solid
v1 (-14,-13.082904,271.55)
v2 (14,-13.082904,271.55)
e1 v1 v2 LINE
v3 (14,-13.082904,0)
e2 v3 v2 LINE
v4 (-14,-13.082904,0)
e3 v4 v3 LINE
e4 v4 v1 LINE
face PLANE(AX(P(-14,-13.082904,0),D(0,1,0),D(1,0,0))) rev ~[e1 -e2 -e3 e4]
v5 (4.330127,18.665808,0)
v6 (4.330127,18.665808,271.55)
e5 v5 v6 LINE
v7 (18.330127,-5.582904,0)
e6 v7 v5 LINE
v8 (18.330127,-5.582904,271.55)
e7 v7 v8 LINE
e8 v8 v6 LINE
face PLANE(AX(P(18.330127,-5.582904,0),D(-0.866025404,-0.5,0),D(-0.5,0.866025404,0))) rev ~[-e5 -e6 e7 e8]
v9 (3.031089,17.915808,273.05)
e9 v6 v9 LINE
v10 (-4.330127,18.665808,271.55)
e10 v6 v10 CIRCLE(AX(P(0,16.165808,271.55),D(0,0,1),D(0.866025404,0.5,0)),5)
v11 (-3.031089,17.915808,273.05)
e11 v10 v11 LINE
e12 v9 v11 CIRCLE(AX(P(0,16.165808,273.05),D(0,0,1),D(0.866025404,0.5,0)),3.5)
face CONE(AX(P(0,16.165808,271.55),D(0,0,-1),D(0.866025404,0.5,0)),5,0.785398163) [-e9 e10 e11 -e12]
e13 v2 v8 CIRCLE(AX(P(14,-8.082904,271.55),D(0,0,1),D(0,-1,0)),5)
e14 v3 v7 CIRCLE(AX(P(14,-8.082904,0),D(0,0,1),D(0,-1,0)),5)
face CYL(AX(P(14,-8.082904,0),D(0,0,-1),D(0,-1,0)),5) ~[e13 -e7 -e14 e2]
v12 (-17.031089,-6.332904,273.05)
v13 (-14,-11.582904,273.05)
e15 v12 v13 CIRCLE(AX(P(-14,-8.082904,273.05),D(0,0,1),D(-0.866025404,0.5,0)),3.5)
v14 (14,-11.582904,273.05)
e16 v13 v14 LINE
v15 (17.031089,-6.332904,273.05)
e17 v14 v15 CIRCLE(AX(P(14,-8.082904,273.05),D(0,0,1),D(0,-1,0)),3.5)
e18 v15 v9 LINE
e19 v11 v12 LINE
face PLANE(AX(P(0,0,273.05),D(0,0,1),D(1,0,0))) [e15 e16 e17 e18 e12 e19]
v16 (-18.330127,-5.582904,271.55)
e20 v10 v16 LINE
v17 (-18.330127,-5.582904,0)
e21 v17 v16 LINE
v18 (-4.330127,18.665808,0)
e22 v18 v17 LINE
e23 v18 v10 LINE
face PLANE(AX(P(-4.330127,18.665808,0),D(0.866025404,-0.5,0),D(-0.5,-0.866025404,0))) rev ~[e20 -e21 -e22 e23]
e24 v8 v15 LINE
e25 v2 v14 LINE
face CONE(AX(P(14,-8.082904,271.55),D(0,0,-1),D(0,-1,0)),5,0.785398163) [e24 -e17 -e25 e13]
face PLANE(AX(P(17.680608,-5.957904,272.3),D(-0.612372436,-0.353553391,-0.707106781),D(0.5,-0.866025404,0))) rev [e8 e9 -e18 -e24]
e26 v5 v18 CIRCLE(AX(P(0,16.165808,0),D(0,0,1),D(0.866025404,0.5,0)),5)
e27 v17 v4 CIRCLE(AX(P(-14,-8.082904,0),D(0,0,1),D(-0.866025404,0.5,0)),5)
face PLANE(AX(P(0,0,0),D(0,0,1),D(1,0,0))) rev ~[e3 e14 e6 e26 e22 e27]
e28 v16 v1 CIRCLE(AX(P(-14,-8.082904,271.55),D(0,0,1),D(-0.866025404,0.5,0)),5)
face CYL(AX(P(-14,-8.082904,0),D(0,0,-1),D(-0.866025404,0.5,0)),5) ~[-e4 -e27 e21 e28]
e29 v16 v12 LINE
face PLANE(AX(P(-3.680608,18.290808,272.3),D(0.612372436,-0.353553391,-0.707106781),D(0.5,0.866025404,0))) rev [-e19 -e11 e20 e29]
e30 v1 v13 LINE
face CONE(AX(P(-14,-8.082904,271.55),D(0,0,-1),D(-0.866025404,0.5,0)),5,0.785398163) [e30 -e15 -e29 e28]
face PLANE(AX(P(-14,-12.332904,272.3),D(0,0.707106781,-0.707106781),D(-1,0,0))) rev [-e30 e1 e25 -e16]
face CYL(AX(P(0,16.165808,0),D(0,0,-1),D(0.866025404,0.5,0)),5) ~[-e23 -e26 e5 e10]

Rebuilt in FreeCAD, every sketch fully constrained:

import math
import FreeCAD as App
import Part
import Sketcher
Q = App.Units.Quantity


def edges_at(feature, points):
    """Names of the edges that pass closest to the given points."""
    edges = feature.Shape.Edges
    near = lambda p: min(range(len(edges)), key=lambda i: edges[i].distToShape(Part.Vertex(*p))[0])
    return sorted({f"Edge{near(p) + 1}" for p in points})

doc = App.newDocument("Part")
body = doc.addObject("PartDesign::Body", "Body")

sketch1 = body.newObject("Sketcher::SketchObject", "Sketch")
sketch1.AttachmentSupport = (doc.getObject("XY_Plane"), [""])
sketch1.MapMode = "FlatFace"
sketch1.addGeometry(Part.LineSegment(App.Vector(18.330127, -5.582904, 0), App.Vector(4.330127, 18.665808, 0)), False)
sketch1.addGeometry(Part.ArcOfCircle(Part.Circle(App.Vector(0, 16.165808, 0), App.Vector(0, 0, 1), 5), math.radians(30), math.radians(150)), False)
sketch1.addGeometry(Part.LineSegment(App.Vector(-4.330127, 18.665808, 0), App.Vector(-18.330127, -5.582904, 0)), False)
sketch1.addGeometry(Part.ArcOfCircle(Part.Circle(App.Vector(-14, -8.082904, 0), App.Vector(0, 0, 1), 5), math.radians(150), math.radians(270)), False)
sketch1.addGeometry(Part.LineSegment(App.Vector(-14, -13.082904, 0), App.Vector(14, -13.082904, 0)), False)
sketch1.addGeometry(Part.ArcOfCircle(Part.Circle(App.Vector(14, -8.082904, 0), App.Vector(0, 0, 1), 5), math.radians(-90), math.radians(30)), False)
sketch1.addConstraint(Sketcher.Constraint("Tangent", 0, 2, 1, 1))
sketch1.addConstraint(Sketcher.Constraint("Tangent", 1, 2, 2, 1))
sketch1.addConstraint(Sketcher.Constraint("Tangent", 2, 2, 3, 1))
sketch1.addConstraint(Sketcher.Constraint("Tangent", 3, 2, 4, 1))
sketch1.addConstraint(Sketcher.Constraint("Tangent", 4, 2, 5, 1))
sketch1.addConstraint(Sketcher.Constraint("Tangent", 5, 2, 0, 1))
sketch1.addConstraint(Sketcher.Constraint("Horizontal", 4))
sketch1.addConstraint(Sketcher.Constraint("Equal", 1, 3))
sketch1.addConstraint(Sketcher.Constraint("Equal", 3, 5))
sketch1.addConstraint(Sketcher.Constraint("Symmetric", 0, 2, 1, 2, -2))
sketch1.addConstraint(Sketcher.Constraint("Radius", 1, Q("5 mm")))
sketch1.addConstraint(Sketcher.Constraint("DistanceX", 4, 1, 4, 2, Q("28 mm")))
sketch1.addConstraint(Sketcher.Constraint("Angle", 0, Q("120 deg")))
sketch1.addConstraint(Sketcher.Constraint("DistanceY", -1, 1, 1, 3, Q("16.165808 mm")))
pad1 = body.newObject("PartDesign::Pad", "Pad")
pad1.Profile = sketch1
pad1.Length = 273.05
doc.recompute()

chamfer = body.newObject("PartDesign::Chamfer", "Chamfer")
chamfer.Base = (pad1, edges_at(pad1, [
    (11.33, 6.541, 273.05),
    (0, 21.166, 273.05),
    (-11.33, 6.541, 273.05),
    (-18.33, -10.583, 273.05),
    (0, -13.083, 273.05),
    (18.33, -10.583, 273.05),
]))
chamfer.Size = 1.5

doc.recompute()
